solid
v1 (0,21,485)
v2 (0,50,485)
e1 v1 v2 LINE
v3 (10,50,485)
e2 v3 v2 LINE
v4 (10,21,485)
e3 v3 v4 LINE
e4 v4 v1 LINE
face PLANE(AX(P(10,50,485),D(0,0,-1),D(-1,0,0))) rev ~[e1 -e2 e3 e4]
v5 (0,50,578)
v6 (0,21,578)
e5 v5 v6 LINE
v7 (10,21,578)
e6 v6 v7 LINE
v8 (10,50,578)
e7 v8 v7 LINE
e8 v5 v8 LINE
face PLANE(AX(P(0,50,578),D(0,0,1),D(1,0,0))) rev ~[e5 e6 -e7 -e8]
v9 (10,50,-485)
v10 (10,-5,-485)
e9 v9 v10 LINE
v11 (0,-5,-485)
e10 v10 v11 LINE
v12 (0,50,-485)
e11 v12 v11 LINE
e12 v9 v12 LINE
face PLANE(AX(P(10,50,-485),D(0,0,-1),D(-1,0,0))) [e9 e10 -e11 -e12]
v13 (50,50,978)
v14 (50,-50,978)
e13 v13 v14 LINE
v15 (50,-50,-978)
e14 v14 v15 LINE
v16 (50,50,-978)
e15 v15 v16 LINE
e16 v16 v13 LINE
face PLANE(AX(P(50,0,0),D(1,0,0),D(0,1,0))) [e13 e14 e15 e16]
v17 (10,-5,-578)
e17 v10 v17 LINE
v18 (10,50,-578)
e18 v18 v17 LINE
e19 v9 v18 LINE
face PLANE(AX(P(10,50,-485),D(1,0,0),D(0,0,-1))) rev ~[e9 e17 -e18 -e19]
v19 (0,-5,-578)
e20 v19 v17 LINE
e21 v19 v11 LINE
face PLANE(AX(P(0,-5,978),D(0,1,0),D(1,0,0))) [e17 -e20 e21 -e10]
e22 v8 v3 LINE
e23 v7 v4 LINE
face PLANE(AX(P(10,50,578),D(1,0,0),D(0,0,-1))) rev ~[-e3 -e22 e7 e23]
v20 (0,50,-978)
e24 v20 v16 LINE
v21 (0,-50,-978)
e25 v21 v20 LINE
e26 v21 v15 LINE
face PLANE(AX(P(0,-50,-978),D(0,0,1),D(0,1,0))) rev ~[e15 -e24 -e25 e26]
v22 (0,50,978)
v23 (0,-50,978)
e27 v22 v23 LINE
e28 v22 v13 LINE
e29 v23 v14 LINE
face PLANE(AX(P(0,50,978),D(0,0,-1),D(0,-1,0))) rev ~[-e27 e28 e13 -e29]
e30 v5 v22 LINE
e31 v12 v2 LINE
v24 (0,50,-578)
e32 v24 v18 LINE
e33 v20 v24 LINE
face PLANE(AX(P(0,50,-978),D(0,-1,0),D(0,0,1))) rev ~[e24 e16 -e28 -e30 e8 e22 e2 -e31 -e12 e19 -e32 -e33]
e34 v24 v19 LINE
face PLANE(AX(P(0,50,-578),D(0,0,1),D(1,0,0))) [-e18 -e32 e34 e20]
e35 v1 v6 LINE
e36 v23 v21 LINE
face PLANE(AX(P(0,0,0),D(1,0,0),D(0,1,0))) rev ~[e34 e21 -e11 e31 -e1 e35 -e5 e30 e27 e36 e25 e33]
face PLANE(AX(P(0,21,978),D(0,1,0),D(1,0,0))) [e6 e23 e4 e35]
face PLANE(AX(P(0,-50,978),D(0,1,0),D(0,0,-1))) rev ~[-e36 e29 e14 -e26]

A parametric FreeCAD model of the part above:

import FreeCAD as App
import Part
import Sketcher

V = App.Vector
Q = App.Units.Quantity

doc = App.newDocument("Part")
params = doc.addObject("Spreadsheet::Sheet", "Params")
for row, (alias, value) in enumerate([
    ("sketch1_width", "100 mm"),
    ("sketch1_height", "1956 mm"),
    ("pad1_length", "50 mm"),
    ("sketch2_width", "10 mm"),
    ("sketch2_height", "93 mm"),
    ("pocket1_length", "55 mm"),
    ("sketch3_width", "10 mm"),
    ("sketch3_height", "93 mm"),
    ("pocket2_length", "29 mm"),
], start=1):
    params.set(f"A{row}", alias)
    params.set(f"B{row}", "=" + value)
    params.setAlias(f"B{row}", alias)

body = doc.addObject("PartDesign::Body", "Body")

# Sketch on YZ plane
sketch1 = doc.addObject("Sketcher::SketchObject", "Sketch")
body.addObject(sketch1)
sketch1.AttachmentSupport = (doc.YZ_Plane, [""])
sketch1.MapMode = "FlatFace"
sketch1.addGeometry(Part.LineSegment(V(-50, 978, 0), V(-50, -978, 0)), False)
sketch1.addGeometry(Part.LineSegment(V(-50, -978, 0), V(50, -978, 0)), False)
sketch1.addGeometry(Part.LineSegment(V(50, -978, 0), V(50, 978, 0)), False)
sketch1.addGeometry(Part.LineSegment(V(50, 978, 0), V(-50, 978, 0)), False)
sketch1.addConstraint(Sketcher.Constraint("Coincident", 0, 2, 1, 1))
sketch1.addConstraint(Sketcher.Constraint("Coincident", 1, 2, 2, 1))
sketch1.addConstraint(Sketcher.Constraint("Coincident", 2, 2, 3, 1))
sketch1.addConstraint(Sketcher.Constraint("Coincident", 3, 2, 0, 1))
sketch1.addConstraint(Sketcher.Constraint("Vertical", 0))
sketch1.addConstraint(Sketcher.Constraint("Horizontal", 1))
sketch1.addConstraint(Sketcher.Constraint("Vertical", 2))
sketch1.addConstraint(Sketcher.Constraint("Horizontal", 3))
sketch1.addConstraint(Sketcher.Constraint("Symmetric", 0, 2, 2, 2, -1, 1))
sketch1.addConstraint(Sketcher.Constraint("DistanceX", 1, 1, 1, 2, Q("100 mm")))
sketch1.addConstraint(Sketcher.Constraint("DistanceY", 0, 2, 0, 1, Q("1956 mm")))
sketch1.setExpression("Constraints[9]", "Params.sketch1_width")
sketch1.setExpression("Constraints[10]", "Params.sketch1_height")
pad1 = doc.addObject("PartDesign::Pad", "Pad")
body.addObject(pad1)
pad1.Profile = sketch1
pad1.setExpression("Length", "Params.pad1_length")

# Sketch on XZ plane
sketch2 = doc.addObject("Sketcher::SketchObject", "Sketch001")
body.addObject(sketch2)
sketch2.AttachmentSupport = (doc.XZ_Plane, [""])
sketch2.MapMode = "FlatFace"
sketch2.AttachmentOffset = App.Placement(V(0, 0, -50), App.Rotation())
sketch2.addGeometry(Part.LineSegment(V(10, -578, 0), V(0, -578, 0)), False)
sketch2.addGeometry(Part.LineSegment(V(0, -578, 0), V(0, -485, 0)), False)
sketch2.addGeometry(Part.LineSegment(V(0, -485, 0), V(10, -485, 0)), False)
sketch2.addGeometry(Part.LineSegment(V(10, -485, 0), V(10, -578, 0)), False)
sketch2.addConstraint(Sketcher.Constraint("Coincident", 0, 2, 1, 1))
sketch2.addConstraint(Sketcher.Constraint("Coincident", 1, 2, 2, 1))
sketch2.addConstraint(Sketcher.Constraint("Coincident", 2, 2, 3, 1))
sketch2.addConstraint(Sketcher.Constraint("Coincident", 3, 2, 0, 1))
sketch2.addConstraint(Sketcher.Constraint("Horizontal", 0))
sketch2.addConstraint(Sketcher.Constraint("Vertical", 1))
sketch2.addConstraint(Sketcher.Constraint("Horizontal", 2))
sketch2.addConstraint(Sketcher.Constraint("Vertical", 3))
sketch2.addConstraint(Sketcher.Constraint("PointOnObject", 0, 2, -2))
sketch2.addConstraint(Sketcher.Constraint("DistanceX", 0, 2, 0, 1, Q("10 mm")))
sketch2.addConstraint(Sketcher.Constraint("DistanceY", 1, 1, 1, 2, Q("93 mm")))
sketch2.addConstraint(Sketcher.Constraint("DistanceY", 0, 2, -1, 1, Q("578 mm")))
sketch2.setExpression("Constraints[9]", "Params.sketch2_width")
sketch2.setExpression("Constraints[10]", "Params.sketch2_height")
pocket1 = doc.addObject("PartDesign::Pocket", "Pocket")
body.addObject(pocket1)
pocket1.Profile = sketch2
pocket1.setExpression("Length", "Params.pocket1_length")
pocket1.Reversed = True

# Sketch on XZ plane
sketch3 = doc.addObject("Sketcher::SketchObject", "Sketch002")
body.addObject(sketch3)
sketch3.AttachmentSupport = (doc.XZ_Plane, [""])
sketch3.MapMode = "FlatFace"
sketch3.AttachmentOffset = App.Placement(V(0, 0, -50), App.Rotation())
sketch3.addGeometry(Part.LineSegment(V(10, 578, 0), V(10, 485, 0)), False)
sketch3.addGeometry(Part.LineSegment(V(10, 485, 0), V(-0.0484, 485, 0)), False)
sketch3.addGeometry(Part.LineSegment(V(-0.0484, 485, 0), V(0, 578, 0)), False)
sketch3.addGeometry(Part.LineSegment(V(0, 578, 0), V(10, 578, 0)), False)
sketch3.addConstraint(Sketcher.Constraint("Coincident", 0, 2, 1, 1))
sketch3.addConstraint(Sketcher.Constraint("Coincident", 1, 2, 2, 1))
sketch3.addConstraint(Sketcher.Constraint("Coincident", 2, 2, 3, 1))
sketch3.addConstraint(Sketcher.Constraint("Coincident", 3, 2, 0, 1))
sketch3.addConstraint(Sketcher.Constraint("Vertical", 0))
sketch3.addConstraint(Sketcher.Constraint("Horizontal", 1))
sketch3.addConstraint(Sketcher.Constraint("Horizontal", 3))
sketch3.addConstraint(Sketcher.Constraint("PointOnObject", 2, 2, -2))
sketch3.addConstraint(Sketcher.Constraint("DistanceX", 3, 1, 3, 2, Q("10 mm")))
sketch3.addConstraint(Sketcher.Constraint("DistanceY", 0, 2, 0, 1, Q("93 mm")))
sketch3.addConstraint(Sketcher.Constraint("DistanceY", -1, 1, 0, 2, Q("485 mm")))
sketch3.addConstraint(Sketcher.Constraint("Angle", 2, Q("89.9702 deg")))
sketch3.setExpression("Constraints[8]", "Params.sketch3_width")
sketch3.setExpression("Constraints[9]", "Params.sketch3_height")
pocket2 = doc.addObject("PartDesign::Pocket", "Pocket001")
body.addObject(pocket2)
pocket2.Profile = sketch3
pocket2.setExpression("Length", "Params.pocket2_length")
pocket2.Reversed = True

doc.recompute()
